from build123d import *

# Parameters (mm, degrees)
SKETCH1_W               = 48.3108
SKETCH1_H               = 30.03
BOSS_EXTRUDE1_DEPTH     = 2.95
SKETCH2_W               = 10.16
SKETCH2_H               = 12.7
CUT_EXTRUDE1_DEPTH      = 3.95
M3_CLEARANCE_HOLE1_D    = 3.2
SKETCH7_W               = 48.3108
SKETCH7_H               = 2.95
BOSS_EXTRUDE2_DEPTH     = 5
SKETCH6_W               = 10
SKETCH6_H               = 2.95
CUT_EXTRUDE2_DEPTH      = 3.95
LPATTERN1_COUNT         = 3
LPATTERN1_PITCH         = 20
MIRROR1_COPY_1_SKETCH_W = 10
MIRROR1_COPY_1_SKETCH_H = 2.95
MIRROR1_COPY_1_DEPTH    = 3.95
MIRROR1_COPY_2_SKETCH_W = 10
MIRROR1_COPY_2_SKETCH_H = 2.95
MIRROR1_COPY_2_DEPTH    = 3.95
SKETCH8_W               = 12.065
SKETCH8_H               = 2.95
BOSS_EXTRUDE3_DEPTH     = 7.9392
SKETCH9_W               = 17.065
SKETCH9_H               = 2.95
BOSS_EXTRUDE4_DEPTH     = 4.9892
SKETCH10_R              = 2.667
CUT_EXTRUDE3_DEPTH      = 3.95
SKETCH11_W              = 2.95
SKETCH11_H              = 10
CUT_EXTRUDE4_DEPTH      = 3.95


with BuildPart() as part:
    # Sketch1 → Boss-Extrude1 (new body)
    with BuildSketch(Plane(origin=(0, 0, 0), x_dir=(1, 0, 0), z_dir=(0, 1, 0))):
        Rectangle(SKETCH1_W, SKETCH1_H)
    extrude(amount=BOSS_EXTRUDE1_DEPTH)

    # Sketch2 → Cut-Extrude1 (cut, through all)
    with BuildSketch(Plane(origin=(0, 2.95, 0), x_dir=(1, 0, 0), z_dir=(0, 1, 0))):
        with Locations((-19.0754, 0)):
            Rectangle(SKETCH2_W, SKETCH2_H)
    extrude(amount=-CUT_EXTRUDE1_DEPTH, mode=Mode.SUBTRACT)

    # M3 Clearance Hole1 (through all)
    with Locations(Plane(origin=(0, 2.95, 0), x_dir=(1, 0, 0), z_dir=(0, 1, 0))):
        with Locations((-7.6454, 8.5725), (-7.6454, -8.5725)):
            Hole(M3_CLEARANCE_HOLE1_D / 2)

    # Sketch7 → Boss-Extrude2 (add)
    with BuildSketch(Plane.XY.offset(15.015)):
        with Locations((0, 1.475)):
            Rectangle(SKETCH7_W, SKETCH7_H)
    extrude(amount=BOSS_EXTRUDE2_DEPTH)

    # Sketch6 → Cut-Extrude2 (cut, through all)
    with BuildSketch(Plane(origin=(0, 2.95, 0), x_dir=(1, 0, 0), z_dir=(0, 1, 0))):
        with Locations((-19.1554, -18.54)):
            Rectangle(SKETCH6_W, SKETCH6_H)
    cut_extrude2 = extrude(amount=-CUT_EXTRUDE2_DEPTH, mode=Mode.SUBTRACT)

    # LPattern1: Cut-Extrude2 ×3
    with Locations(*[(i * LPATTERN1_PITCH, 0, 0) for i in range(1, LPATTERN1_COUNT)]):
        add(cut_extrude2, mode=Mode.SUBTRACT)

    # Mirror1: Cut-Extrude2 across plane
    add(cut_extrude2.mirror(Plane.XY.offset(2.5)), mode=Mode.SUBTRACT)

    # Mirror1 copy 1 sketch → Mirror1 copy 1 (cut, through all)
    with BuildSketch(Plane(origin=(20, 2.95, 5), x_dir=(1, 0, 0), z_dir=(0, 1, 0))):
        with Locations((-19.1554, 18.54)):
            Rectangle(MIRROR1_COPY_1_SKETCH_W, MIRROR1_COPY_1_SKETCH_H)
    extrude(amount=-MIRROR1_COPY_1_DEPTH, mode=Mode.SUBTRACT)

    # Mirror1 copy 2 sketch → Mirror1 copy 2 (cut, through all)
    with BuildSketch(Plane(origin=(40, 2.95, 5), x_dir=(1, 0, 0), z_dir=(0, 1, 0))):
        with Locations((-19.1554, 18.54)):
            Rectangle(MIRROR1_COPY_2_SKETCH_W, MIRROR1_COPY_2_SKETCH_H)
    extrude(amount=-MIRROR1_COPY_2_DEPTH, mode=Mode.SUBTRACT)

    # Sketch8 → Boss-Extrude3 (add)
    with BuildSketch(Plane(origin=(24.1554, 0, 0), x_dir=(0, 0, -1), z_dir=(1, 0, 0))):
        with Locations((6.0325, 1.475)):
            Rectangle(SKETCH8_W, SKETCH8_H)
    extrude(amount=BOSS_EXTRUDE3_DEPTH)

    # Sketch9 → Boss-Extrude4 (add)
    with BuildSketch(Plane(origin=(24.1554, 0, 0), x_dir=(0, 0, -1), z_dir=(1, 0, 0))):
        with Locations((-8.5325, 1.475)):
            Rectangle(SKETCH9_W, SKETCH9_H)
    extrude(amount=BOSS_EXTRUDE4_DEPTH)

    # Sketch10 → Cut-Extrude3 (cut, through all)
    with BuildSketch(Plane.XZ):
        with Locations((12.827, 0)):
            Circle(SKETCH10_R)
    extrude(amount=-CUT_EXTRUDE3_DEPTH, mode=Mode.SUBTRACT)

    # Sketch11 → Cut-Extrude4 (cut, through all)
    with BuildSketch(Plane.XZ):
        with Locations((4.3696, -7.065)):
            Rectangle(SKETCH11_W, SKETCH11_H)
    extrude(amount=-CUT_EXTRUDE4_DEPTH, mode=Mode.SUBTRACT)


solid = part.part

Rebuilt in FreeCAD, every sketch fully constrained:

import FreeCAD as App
import Part
import Sketcher
Q = App.Units.Quantity

doc = App.newDocument("Part")
body = doc.addObject("PartDesign::Body", "Body")

# Sketch on XZ plane
sketch1 = doc.addObject("Sketcher::SketchObject", "Sketch")
body.addObject(sketch1)
sketch1.AttachmentSupport = (doc.XZ_Plane, [""])
sketch1.MapMode = "FlatFace"
sketch1.addGeometry(Part.LineSegment(App.Vector(-24.1554, -15.015, 0), App.Vector(-24.1554, 15.015, 0)), False)
sketch1.addGeometry(Part.LineSegment(App.Vector(-24.1554, 15.015, 0), App.Vector(24.1554, 15.015, 0)), False)
sketch1.addGeometry(Part.LineSegment(App.Vector(24.1554, 15.015, 0), App.Vector(24.1554, -15.015, 0)), False)
sketch1.addGeometry(Part.LineSegment(App.Vector(24.1554, -15.015, 0), App.Vector(-24.1554, -15.015, 0)), False)
sketch1.addConstraint(Sketcher.Constraint("Coincident", 0, 2, 1, 1))
sketch1.addConstraint(Sketcher.Constraint("Coincident", 1, 2, 2, 1))
sketch1.addConstraint(Sketcher.Constraint("Coincident", 2, 2, 3, 1))
sketch1.addConstraint(Sketcher.Constraint("Coincident", 3, 2, 0, 1))
sketch1.addConstraint(Sketcher.Constraint("Vertical", 0))
sketch1.addConstraint(Sketcher.Constraint("Horizontal", 1))
sketch1.addConstraint(Sketcher.Constraint("Vertical", 2))
sketch1.addConstraint(Sketcher.Constraint("Horizontal", 3))
sketch1.addConstraint(Sketcher.Constraint("Symmetric", 0, 2, 2, 2, -1, 1))
sketch1.addConstraint(Sketcher.Constraint("DistanceX", 1, 1, 1, 2, Q("1.902 in")))
sketch1.addConstraint(Sketcher.Constraint("DistanceY", 0, 1, 0, 2, Q("30.03 mm")))
pad1 = doc.addObject("PartDesign::Pad", "Pad")
body.addObject(pad1)
pad1.Profile = sketch1
pad1.Length = 2.95
pad1.Reversed = True

# Sketch on XZ plane
sketch2 = doc.addObject("Sketcher::SketchObject", "Sketch001")
body.addObject(sketch2)
sketch2.AttachmentSupport = (doc.XZ_Plane, [""])
sketch2.MapMode = "FlatFace"
sketch2.AttachmentOffset = App.Placement(App.Vector(0, 0, -2.95), App.Rotation())
sketch2.addGeometry(Part.LineSegment(App.Vector(-24.1554, -6.35, 0), App.Vector(-24.1554, 6.35, 0)), False)
sketch2.addGeometry(Part.LineSegment(App.Vector(-24.1554, 6.35, 0), App.Vector(-13.9954, 6.35, 0)), False)
sketch2.addGeometry(Part.LineSegment(App.Vector(-13.9954, 6.35, 0), App.Vector(-13.9954, -6.35, 0)), False)
sketch2.addGeometry(Part.LineSegment(App.Vector(-13.9954, -6.35, 0), App.Vector(-24.1554, -6.35, 0)), False)
sketch2.addConstraint(Sketcher.Constraint("Coincident", 0, 2, 1, 1))
sketch2.addConstraint(Sketcher.Constraint("Coincident", 1, 2, 2, 1))
sketch2.addConstraint(Sketcher.Constraint("Coincident", 2, 2, 3, 1))
sketch2.addConstraint(Sketcher.Constraint("Coincident", 3, 2, 0, 1))
sketch2.addConstraint(Sketcher.Constraint("Vertical", 0))
sketch2.addConstraint(Sketcher.Constraint("Horizontal", 1))
sketch2.addConstraint(Sketcher.Constraint("Vertical", 2))
sketch2.addConstraint(Sketcher.Constraint("Horizontal", 3))
sketch2.addConstraint(Sketcher.Constraint("DistanceX", 1, 1, 1, 2, Q("0.4 in")))
sketch2.addConstraint(Sketcher.Constraint("DistanceY", 0, 1, 0, 2, Q("0.5 in")))
sketch2.addConstraint(Sketcher.Constraint("DistanceY", -1, 1, 0, 2, Q("0.25 in")))
sketch2.addConstraint(Sketcher.Constraint("DistanceX", 0, 2, -1, 1, Q("0.951 in")))
pocket1 = doc.addObject("PartDesign::Pocket", "Pocket")
body.addObject(pocket1)
pocket1.Profile = sketch2
pocket1.Type = "ThroughAll"
pocket1.Reversed = True

# Sketch on XZ plane
sketch3 = doc.addObject("Sketcher::SketchObject", "Sketch002")
body.addObject(sketch3)
sketch3.AttachmentSupport = (doc.XZ_Plane, [""])
sketch3.MapMode = "FlatFace"
sketch3.AttachmentOffset = App.Placement(App.Vector(0, 0, -2.95), App.Rotation())
sketch3.addGeometry(Part.Circle(App.Vector(-7.6454, -8.5725, 0), App.Vector(0, 0, 1), 1.6), False)
sketch3.addGeometry(Part.Circle(App.Vector(-7.6454, 8.5725, 0), App.Vector(0, 0, 1), 1.6), False)
sketch3.addConstraint(Sketcher.Constraint("Equal", 0, 1))
sketch3.addConstraint(Sketcher.Constraint("Symmetric", 0, 3, 1, 3, -1))
sketch3.addConstraint(Sketcher.Constraint("Diameter", 0, Q("3.2 mm")))
sketch3.addConstraint(Sketcher.Constraint("DistanceX", 0, 3, -1, 1, Q("0.301 in")))
sketch3.addConstraint(Sketcher.Constraint("DistanceY", 0, 3, 1, 3, Q("0.675 in")))
doc.recompute()
hole = doc.addObject("PartDesign::Hole", "Hole")
body.addObject(hole)
hole.Profile = sketch3
hole.ThreadType = "None"
hole.Diameter = 3.2
hole.DepthType = "ThroughAll"
hole.Reversed = True

# Sketch on XY plane
sketch4 = doc.addObject("Sketcher::SketchObject", "Sketch003")
body.addObject(sketch4)
sketch4.AttachmentSupport = (doc.XY_Plane, [""])
sketch4.MapMode = "FlatFace"
sketch4.AttachmentOffset = App.Placement(App.Vector(0, 0, 15.015), App.Rotation())
sketch4.addGeometry(Part.LineSegment(App.Vector(-24.1554, 2.95, 0), App.Vector(-24.1554, 0, 0)), False)
sketch4.addGeometry(Part.LineSegment(App.Vector(-24.1554, 0, 0), App.Vector(24.1554, 0, 0)), False)
sketch4.addGeometry(Part.LineSegment(App.Vector(24.1554, 0, 0), App.Vector(24.1554, 2.95, 0)), False)
sketch4.addGeometry(Part.LineSegment(App.Vector(24.1554, 2.95, 0), App.Vector(-24.1554, 2.95, 0)), False)
sketch4.addConstraint(Sketcher.Constraint("Coincident", 0, 2, 1, 1))
sketch4.addConstraint(Sketcher.Constraint("Coincident", 1, 2, 2, 1))
sketch4.addConstraint(Sketcher.Constraint("Coincident", 2, 2, 3, 1))
sketch4.addConstraint(Sketcher.Constraint("Coincident", 3, 2, 0, 1))
sketch4.addConstraint(Sketcher.Constraint("Vertical", 0))
sketch4.addConstraint(Sketcher.Constraint("Horizontal", 1))
sketch4.addConstraint(Sketcher.Constraint("Vertical", 2))
sketch4.addConstraint(Sketcher.Constraint("Horizontal", 3))
sketch4.addConstraint(Sketcher.Constraint("Symmetric", 0, 2, 1, 2, -1, 1))
sketch4.addConstraint(Sketcher.Constraint("DistanceX", 1, 1, 1, 2, Q("1.902 in")))
sketch4.addConstraint(Sketcher.Constraint("DistanceY", 0, 2, 0, 1, Q("2.95 mm")))
pad2 = doc.addObject("PartDesign::Pad", "Pad001")
body.addObject(pad2)
pad2.Profile = sketch4
pad2.Length = 5

# Sketch on XZ plane
sketch5 = doc.addObject("Sketcher::SketchObject", "Sketch004")
body.addObject(sketch5)
sketch5.AttachmentSupport = (doc.XZ_Plane, [""])
sketch5.MapMode = "FlatFace"
sketch5.AttachmentOffset = App.Placement(App.Vector(0, 0, -2.95), App.Rotation())
sketch5.addGeometry(Part.LineSegment(App.Vector(-24.1554, 17.065, 0), App.Vector(-24.1554, 20.015, 0)), False)
sketch5.addGeometry(Part.LineSegment(App.Vector(-24.1554, 20.015, 0), App.Vector(-14.1554, 20.015, 0)), False)
sketch5.addGeometry(Part.LineSegment(App.Vector(-14.1554, 20.015, 0), App.Vector(-14.1554, 17.065, 0)), False)
sketch5.addGeometry(Part.LineSegment(App.Vector(-14.1554, 17.065, 0), App.Vector(-24.1554, 17.065, 0)), False)
sketch5.addConstraint(Sketcher.Constraint("Coincident", 0, 2, 1, 1))
sketch5.addConstraint(Sketcher.Constraint("Coincident", 1, 2, 2, 1))
sketch5.addConstraint(Sketcher.Constraint("Coincident", 2, 2, 3, 1))
sketch5.addConstraint(Sketcher.Constraint("Coincident", 3, 2, 0, 1))
sketch5.addConstraint(Sketcher.Constraint("Vertical", 0))
sketch5.addConstraint(Sketcher.Constraint("Horizontal", 1))
sketch5.addConstraint(Sketcher.Constraint("Vertical", 2))
sketch5.addConstraint(Sketcher.Constraint("Horizontal", 3))
sketch5.addConstraint(Sketcher.Constraint("DistanceX", 0, 2, -1, 1, Q("0.951 in")))
sketch5.addConstraint(Sketcher.Constraint("DistanceX", 1, 1, 1, 2, Q("10 mm")))
sketch5.addConstraint(Sketcher.Constraint("DistanceY", 0, 1, 0, 2, Q("2.95 mm")))
sketch5.addConstraint(Sketcher.Constraint("DistanceY", -1, 1, 0, 2, Q("20.015 mm")))
pocket2 = doc.addObject("PartDesign::Pocket", "Pocket001")
body.addObject(pocket2)
pocket2.Profile = sketch5
pocket2.Type = "ThroughAll"
pocket2.Reversed = True
doc.recompute()

linearpattern = doc.addObject("PartDesign::LinearPattern", "LinearPattern")
body.addObject(linearpattern)
linearpattern.Originals = [pocket2]
linearpattern.Direction = (doc.X_Axis, [""])
linearpattern.Mode = "offset"
linearpattern.Offset = 20
linearpattern.Occurrences = 3
body.Tip = linearpattern
doc.recompute()

datumplane = doc.addObject("PartDesign::Plane", "DatumPlane")
body.addObject(datumplane)
datumplane.AttachmentSupport = (doc.XY_Plane, [""])
datumplane.MapMode = "FlatFace"
datumplane.AttachmentOffset = App.Placement(App.Vector(0, 0, 2.5), App.Rotation())
mirrored = doc.addObject("PartDesign::Mirrored", "Mirrored")
body.addObject(mirrored)
mirrored.Originals = [pocket2]
mirrored.MirrorPlane = (datumplane, [""])
body.Tip = mirrored

# Sketch on XZ plane
sketch6 = doc.addObject("Sketcher::SketchObject", "Sketch005")
body.addObject(sketch6)
sketch6.AttachmentSupport = (doc.XZ_Plane, [""])
sketch6.MapMode = "FlatFace"
sketch6.AttachmentOffset = App.Placement(App.Vector(0, 0, -2.95), App.Rotation())
sketch6.addGeometry(Part.LineSegment(App.Vector(-4.1554, -15.015, 0), App.Vector(-4.1554, -12.065, 0)), False)
sketch6.addGeometry(Part.LineSegment(App.Vector(-4.1554, -12.065, 0), App.Vector(5.8446, -12.065, 0)), False)
sketch6.addGeometry(Part.LineSegment(App.Vector(5.8446, -12.065, 0), App.Vector(5.8446, -15.015, 0)), False)
sketch6.addGeometry(Part.LineSegment(App.Vector(5.8446, -15.015, 0), App.Vector(-4.1554, -15.015, 0)), False)
sketch6.addConstraint(Sketcher.Constraint("Coincident", 0, 2, 1, 1))
sketch6.addConstraint(Sketcher.Constraint("Coincident", 1, 2, 2, 1))
sketch6.addConstraint(Sketcher.Constraint("Coincident", 2, 2, 3, 1))
sketch6.addConstraint(Sketcher.Constraint("Coincident", 3, 2, 0, 1))
sketch6.addConstraint(Sketcher.Constraint("Vertical", 0))
sketch6.addConstraint(Sketcher.Constraint("Horizontal", 1))
sketch6.addConstraint(Sketcher.Constraint("Vertical", 2))
sketch6.addConstraint(Sketcher.Constraint("Horizontal", 3))
sketch6.addConstraint(Sketcher.Constraint("DistanceY", 0, 2, -1, 1, Q("0.475 in")))
sketch6.addConstraint(Sketcher.Constraint("DistanceX", 1, 1, 1, 2, Q("10 mm")))
sketch6.addConstraint(Sketcher.Constraint("DistanceY", 0, 1, 0, 2, Q("2.95 mm")))
sketch6.addConstraint(Sketcher.Constraint("DistanceX", 0, 2, -1, 1, Q("4.1554 mm")))
pocket3 = doc.addObject("PartDesign::Pocket", "Pocket002")
body.addObject(pocket3)
pocket3.Profile = sketch6
pocket3.Type = "ThroughAll"
pocket3.Reversed = True

# Sketch on XZ plane
sketch7 = doc.addObject("Sketcher::SketchObject", "Sketch006")
body.addObject(sketch7)
sketch7.AttachmentSupport = (doc.XZ_Plane, [""])
sketch7.MapMode = "FlatFace"
sketch7.AttachmentOffset = App.Placement(App.Vector(0, 0, -2.95), App.Rotation())
sketch7.addGeometry(Part.LineSegment(App.Vector(15.8446, -15.015, 0), App.Vector(15.8446, -12.065, 0)), False)
sketch7.addGeometry(Part.LineSegment(App.Vector(15.8446, -12.065, 0), App.Vector(25.8446, -12.065, 0)), False)
sketch7.addGeometry(Part.LineSegment(App.Vector(25.8446, -12.065, 0), App.Vector(25.8446, -15.015, 0)), False)
sketch7.addGeometry(Part.LineSegment(App.Vector(25.8446, -15.015, 0), App.Vector(15.8446, -15.015, 0)), False)
sketch7.addConstraint(Sketcher.Constraint("Coincident", 0, 2, 1, 1))
sketch7.addConstraint(Sketcher.Constraint("Coincident", 1, 2, 2, 1))
sketch7.addConstraint(Sketcher.Constraint("Coincident", 2, 2, 3, 1))
sketch7.addConstraint(Sketcher.Constraint("Coincident", 3, 2, 0, 1))
sketch7.addConstraint(Sketcher.Constraint("Vertical", 0))
sketch7.addConstraint(Sketcher.Constraint("Horizontal", 1))
sketch7.addConstraint(Sketcher.Constraint("Vertical", 2))
sketch7.addConstraint(Sketcher.Constraint("Horizontal", 3))
sketch7.addConstraint(Sketcher.Constraint("DistanceY", 0, 2, -1, 1, Q("0.475 in")))
sketch7.addConstraint(Sketcher.Constraint("DistanceX", 1, 1, 1, 2, Q("10 mm")))
sketch7.addConstraint(Sketcher.Constraint("DistanceY", 0, 1, 0, 2, Q("2.95 mm")))
sketch7.addConstraint(Sketcher.Constraint("DistanceX", -1, 1, 0, 2, Q("15.8446 mm")))
pocket4 = doc.addObject("PartDesign::Pocket", "Pocket003")
body.addObject(pocket4)
pocket4.Profile = sketch7
pocket4.Type = "ThroughAll"
pocket4.Reversed = True

# Sketch on YZ plane
sketch8 = doc.addObject("Sketcher::SketchObject", "Sketch007")
body.addObject(sketch8)
sketch8.AttachmentSupport = (doc.YZ_Plane, [""])
sketch8.MapMode = "FlatFace"
sketch8.AttachmentOffset = App.Placement(App.Vector(0, 0, 0.951 * 25.4), App.Rotation())
sketch8.addGeometry(Part.LineSegment(App.Vector(2.95, 0, 0), App.Vector(0, 0, 0)), False)
sketch8.addGeometry(Part.LineSegment(App.Vector(0, 0, 0), App.Vector(0, -12.065, 0)), False)
sketch8.addGeometry(Part.LineSegment(App.Vector(0, -12.065, 0), App.Vector(2.95, -12.065, 0)), False)
sketch8.addGeometry(Part.LineSegment(App.Vector(2.95, -12.065, 0), App.Vector(2.95, 0, 0)), False)
sketch8.addConstraint(Sketcher.Constraint("Coincident", 0, 2, 1, 1))
sketch8.addConstraint(Sketcher.Constraint("Coincident", 1, 2, 2, 1))
sketch8.addConstraint(Sketcher.Constraint("Coincident", 2, 2, 3, 1))
sketch8.addConstraint(Sketcher.Constraint("Coincident", 3, 2, 0, 1))
sketch8.addConstraint(Sketcher.Constraint("Horizontal", 0))
sketch8.addConstraint(Sketcher.Constraint("Vertical", 1))
sketch8.addConstraint(Sketcher.Constraint("Horizontal", 2))
sketch8.addConstraint(Sketcher.Constraint("Vertical", 3))
sketch8.addConstraint(Sketcher.Constraint("Coincident", 0, 2, -1, 1))
sketch8.addConstraint(Sketcher.Constraint("DistanceY", 1, 2, 1, 1, Q("0.475 in")))
sketch8.addConstraint(Sketcher.Constraint("DistanceX", 0, 2, 0, 1, Q("2.95 mm")))
pad3 = doc.addObject("PartDesign::Pad", "Pad002")
body.addObject(pad3)
pad3.Profile = sketch8
pad3.Length = 7.9392

# Sketch on YZ plane
sketch9 = doc.addObject("Sketcher::SketchObject", "Sketch008")
body.addObject(sketch9)
sketch9.AttachmentSupport = (doc.YZ_Plane, [""])
sketch9.MapMode = "FlatFace"
sketch9.AttachmentOffset = App.Placement(App.Vector(0, 0, 0.951 * 25.4), App.Rotation())
sketch9.addGeometry(Part.LineSegment(App.Vector(2.95, 17.065, 0), App.Vector(0, 17.065, 0)), False)
sketch9.addGeometry(Part.LineSegment(App.Vector(0, 17.065, 0), App.Vector(0, 0, 0)), False)
sketch9.addGeometry(Part.LineSegment(App.Vector(0, 0, 0), App.Vector(2.95, 0, 0)), False)
sketch9.addGeometry(Part.LineSegment(App.Vector(2.95, 0, 0), App.Vector(2.95, 17.065, 0)), False)
sketch9.addConstraint(Sketcher.Constraint("Coincident", 0, 2, 1, 1))
sketch9.addConstraint(Sketcher.Constraint("Coincident", 1, 2, 2, 1))
sketch9.addConstraint(Sketcher.Constraint("Coincident", 2, 2, 3, 1))
sketch9.addConstraint(Sketcher.Constraint("Coincident", 3, 2, 0, 1))
sketch9.addConstraint(Sketcher.Constraint("Horizontal", 0))
sketch9.addConstraint(Sketcher.Constraint("Vertical", 1))
sketch9.addConstraint(Sketcher.Constraint("Horizontal", 2))
sketch9.addConstraint(Sketcher.Constraint("Vertical", 3))
sketch9.addConstraint(Sketcher.Constraint("Coincident", 1, 2, -1, 1))
sketch9.addConstraint(Sketcher.Constraint("DistanceX", 0, 2, 0, 1, Q("2.95 mm")))
sketch9.addConstraint(Sketcher.Constraint("DistanceY", 1, 2, 1, 1, Q("17.065 mm")))
pad4 = doc.addObject("PartDesign::Pad", "Pad003")
body.addObject(pad4)
pad4.Profile = sketch9
pad4.Length = 4.9892

# Sketch on XZ plane
sketch10 = doc.addObject("Sketcher::SketchObject", "Sketch009")
body.addObject(sketch10)
sketch10.AttachmentSupport = (doc.XZ_Plane, [""])
sketch10.MapMode = "FlatFace"
sketch10.addGeometry(Part.Circle(App.Vector(12.827, 0, 0), App.Vector(0, 0, 1), 2.667), False)
sketch10.addConstraint(Sketcher.Constraint("PointOnObject", 0, 3, -1))
sketch10.addConstraint(Sketcher.Constraint("Diameter", 0, Q("0.21 in")))
sketch10.addConstraint(Sketcher.Constraint("DistanceX", -1, 1, 0, 3, Q("0.505 in")))
pocket5 = doc.addObject("PartDesign::Pocket", "Pocket004")
body.addObject(pocket5)
pocket5.Profile = sketch10
pocket5.Type = "ThroughAll"

# Sketch on XZ plane
sketch11 = doc.addObject("Sketcher::SketchObject", "Sketch010")
body.addObject(sketch11)
sketch11.AttachmentSupport = (doc.XZ_Plane, [""])
sketch11.MapMode = "FlatFace"
sketch11.addGeometry(Part.LineSegment(App.Vector(2.8946, -2.065, 0), App.Vector(2.8946, -12.065, 0)), False)
sketch11.addGeometry(Part.LineSegment(App.Vector(2.8946, -12.065, 0), App.Vector(5.8446, -12.065, 0)), False)
sketch11.addGeometry(Part.LineSegment(App.Vector(5.8446, -12.065, 0), App.Vector(5.8446, -2.065, 0)), False)
sketch11.addGeometry(Part.LineSegment(App.Vector(5.8446, -2.065, 0), App.Vector(2.8946, -2.065, 0)), False)
sketch11.addConstraint(Sketcher.Constraint("Coincident", 0, 2, 1, 1))
sketch11.addConstraint(Sketcher.Constraint("Coincident", 1, 2, 2, 1))
sketch11.addConstraint(Sketcher.Constraint("Coincident", 2, 2, 3, 1))
sketch11.addConstraint(Sketcher.Constraint("Coincident", 3, 2, 0, 1))
sketch11.addConstraint(Sketcher.Constraint("Vertical", 0))
sketch11.addConstraint(Sketcher.Constraint("Horizontal", 1))
sketch11.addConstraint(Sketcher.Constraint("Vertical", 2))
sketch11.addConstraint(Sketcher.Constraint("Horizontal", 3))
sketch11.addConstraint(Sketcher.Constraint("DistanceY", 0, 2, -1, 1, Q("0.475 in")))
sketch11.addConstraint(Sketcher.Constraint("DistanceX", 1, 1, 1, 2, Q("2.95 mm")))
sketch11.addConstraint(Sketcher.Constraint("DistanceY", 0, 2, 0, 1, Q("10 mm")))
sketch11.addConstraint(Sketcher.Constraint("DistanceX", -1, 1, 0, 2, Q("2.8946 mm")))
pocket6 = doc.addObject("PartDesign::Pocket", "Pocket005")
body.addObject(pocket6)
pocket6.Profile = sketch11
pocket6.Type = "ThroughAll"

doc.recompute()
